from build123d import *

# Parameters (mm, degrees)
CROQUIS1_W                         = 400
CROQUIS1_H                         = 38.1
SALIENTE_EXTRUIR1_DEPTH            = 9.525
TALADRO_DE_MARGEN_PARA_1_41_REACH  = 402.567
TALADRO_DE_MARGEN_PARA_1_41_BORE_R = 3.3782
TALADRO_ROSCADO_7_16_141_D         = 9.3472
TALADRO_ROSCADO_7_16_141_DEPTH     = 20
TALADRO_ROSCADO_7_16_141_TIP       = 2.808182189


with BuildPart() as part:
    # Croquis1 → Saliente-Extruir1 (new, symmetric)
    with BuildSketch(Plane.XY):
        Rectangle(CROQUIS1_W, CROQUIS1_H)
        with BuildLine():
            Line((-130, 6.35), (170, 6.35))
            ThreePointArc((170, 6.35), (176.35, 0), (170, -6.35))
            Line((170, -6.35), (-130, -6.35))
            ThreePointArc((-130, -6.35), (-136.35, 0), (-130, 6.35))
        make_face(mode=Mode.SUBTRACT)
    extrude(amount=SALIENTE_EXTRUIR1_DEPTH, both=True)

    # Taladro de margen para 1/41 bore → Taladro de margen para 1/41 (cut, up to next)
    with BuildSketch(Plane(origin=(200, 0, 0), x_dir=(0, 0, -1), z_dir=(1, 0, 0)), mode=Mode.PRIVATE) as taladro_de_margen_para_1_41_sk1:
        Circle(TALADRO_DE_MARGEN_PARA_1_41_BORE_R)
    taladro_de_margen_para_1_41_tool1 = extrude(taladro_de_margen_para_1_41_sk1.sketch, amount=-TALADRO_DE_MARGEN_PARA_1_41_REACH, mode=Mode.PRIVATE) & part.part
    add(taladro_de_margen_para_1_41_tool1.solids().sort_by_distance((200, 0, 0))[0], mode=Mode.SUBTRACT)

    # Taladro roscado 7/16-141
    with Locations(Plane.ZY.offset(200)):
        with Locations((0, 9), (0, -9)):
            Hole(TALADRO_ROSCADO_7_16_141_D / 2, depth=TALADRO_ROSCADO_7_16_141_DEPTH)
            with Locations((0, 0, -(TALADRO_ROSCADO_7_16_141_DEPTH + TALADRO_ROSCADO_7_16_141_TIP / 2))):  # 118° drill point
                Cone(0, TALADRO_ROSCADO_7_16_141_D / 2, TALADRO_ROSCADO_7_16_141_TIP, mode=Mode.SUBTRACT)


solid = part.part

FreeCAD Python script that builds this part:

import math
import FreeCAD as App
import Part
import Sketcher
Q = App.Units.Quantity


def add_polygon(sketch, points):
    """Adds a closed chain of lines whose ends are joined by coincident constraints."""
    first, n = sketch.GeometryCount, len(points)
    for a, b in zip(points, points[1:] + points[:1]):
        sketch.addGeometry(Part.LineSegment(App.Vector(*a, 0), App.Vector(*b, 0)), False)
    for i in range(n):
        sketch.addConstraint(Sketcher.Constraint("Coincident", first + i, 2, first + (i + 1) % n, 1))

doc = App.newDocument("Part")
body = doc.addObject("PartDesign::Body", "Body")

# Sketch on XY plane
sketch1 = body.newObject("Sketcher::SketchObject", "Sketch")
sketch1.AttachmentSupport = (doc.getObject("XY_Plane"), [""])
sketch1.MapMode = "FlatFace"
add_polygon(sketch1, [(-200, 19), (-200, -19), (200, -19), (200, 19)])  # lines 0-3
sketch1.addGeometry(Part.ArcOfCircle(Part.Circle(App.Vector(-130, 0, 0), App.Vector(0, 0, 1), 6), math.radians(90), math.radians(270)), False)  # 4
sketch1.addGeometry(Part.LineSegment(App.Vector(-130, 6, 0), App.Vector(170, 6, 0)), False)  # 5
sketch1.addGeometry(Part.ArcOfCircle(Part.Circle(App.Vector(170, 0, 0), App.Vector(0, 0, 1), 6), math.radians(-90), math.radians(90)), False)  # 6
sketch1.addGeometry(Part.LineSegment(App.Vector(170, -6, 0), App.Vector(-130, -6, 0)), False)  # 7
sketch1.addConstraint([
    Sketcher.Constraint("Tangent", 4, 1, 5, 1),
    Sketcher.Constraint("Tangent", 5, 2, 6, 2),
    Sketcher.Constraint("Tangent", 6, 1, 7, 1),
    Sketcher.Constraint("Tangent", 7, 2, 4, 2),
    Sketcher.Constraint("Vertical", 0),
    Sketcher.Constraint("Horizontal", 1),
    Sketcher.Constraint("Vertical", 2),
    Sketcher.Constraint("Horizontal", 3),
    Sketcher.Constraint("Horizontal", 5),
    Sketcher.Constraint("Horizontal", 7),
    Sketcher.Constraint("Symmetric", 0, 2, 2, 2, -1, 1),
    Sketcher.Constraint("PointOnObject", 4, 3, -1),
    Sketcher.Constraint("Radius", 4, Q("0.25 in")),
    Sketcher.Constraint("DistanceY", 0, 2, 0, 1, Q("1.5 in")),
    Sketcher.Constraint("DistanceX", 1, 1, 1, 2, Q("400 mm")),
    Sketcher.Constraint("DistanceX", 5, 1, 5, 2, Q("300 mm")),
    Sketcher.Constraint("DistanceX", 4, 3, -1, 1, Q("130 mm")),
])
pad1 = body.newObject("PartDesign::Pad", "Pad")
pad1.Profile = sketch1
pad1.Length = Q("0.75 in")
pad1.Midplane = True

# Sketch on YZ plane
sketch2 = body.newObject("Sketcher::SketchObject", "Sketch001")
sketch2.AttachmentSupport = (doc.getObject("YZ_Plane"), [""])
sketch2.MapMode = "FlatFace"
sketch2.AttachmentOffset = App.Placement(App.Vector(0, 0, 200), App.Rotation())
sketch2.addGeometry(Part.Circle(App.Vector(0, 0, 0), App.Vector(0, 0, 1), 3.4), False)
sketch2.addConstraint([
    Sketcher.Constraint("Coincident", 0, 3, -1, 1),
    Sketcher.Constraint("Diameter", 0, Q("0.266 in")),
])
pocket1 = body.newObject("PartDesign::Pocket", "Pocket")
pocket1.Profile = sketch2
pocket1.Type = "UpToFirst"

# Sketch on YZ plane
sketch3 = body.newObject("Sketcher::SketchObject", "Sketch002")
sketch3.AttachmentSupport = (doc.getObject("YZ_Plane"), [""])
sketch3.MapMode = "FlatFace"
sketch3.AttachmentOffset = App.Placement(App.Vector(0, 0, -200), App.Rotation())
sketch3.addGeometry([
    Part.Circle(App.Vector(9, 0, 0), App.Vector(0, 0, 1), 4.7),
    Part.Circle(App.Vector(-9, 0, 0), App.Vector(0, 0, 1), 4.7),
], False)
sketch3.addConstraint([
    Sketcher.Constraint("Equal", 0, 1),
    Sketcher.Constraint("Symmetric", 0, 3, 1, 3, -1, 1),
    Sketcher.Constraint("PointOnObject", 0, 3, -1),
    Sketcher.Constraint("Diameter", 0, Q("0.368 in")),
    Sketcher.Constraint("DistanceX", -1, 1, 0, 3, Q("9 mm")),
])
doc.recompute()
hole = body.newObject("PartDesign::Hole", "Hole")
hole.Profile = sketch3
hole.ThreadType = "None"
hole.Diameter = Q("0.368 in")
hole.DepthType = "Dimension"
hole.Depth = 20
hole.DrillPoint = "Angled"
hole.DrillPointAngle = 118
hole.Reversed = True

doc.recompute()
